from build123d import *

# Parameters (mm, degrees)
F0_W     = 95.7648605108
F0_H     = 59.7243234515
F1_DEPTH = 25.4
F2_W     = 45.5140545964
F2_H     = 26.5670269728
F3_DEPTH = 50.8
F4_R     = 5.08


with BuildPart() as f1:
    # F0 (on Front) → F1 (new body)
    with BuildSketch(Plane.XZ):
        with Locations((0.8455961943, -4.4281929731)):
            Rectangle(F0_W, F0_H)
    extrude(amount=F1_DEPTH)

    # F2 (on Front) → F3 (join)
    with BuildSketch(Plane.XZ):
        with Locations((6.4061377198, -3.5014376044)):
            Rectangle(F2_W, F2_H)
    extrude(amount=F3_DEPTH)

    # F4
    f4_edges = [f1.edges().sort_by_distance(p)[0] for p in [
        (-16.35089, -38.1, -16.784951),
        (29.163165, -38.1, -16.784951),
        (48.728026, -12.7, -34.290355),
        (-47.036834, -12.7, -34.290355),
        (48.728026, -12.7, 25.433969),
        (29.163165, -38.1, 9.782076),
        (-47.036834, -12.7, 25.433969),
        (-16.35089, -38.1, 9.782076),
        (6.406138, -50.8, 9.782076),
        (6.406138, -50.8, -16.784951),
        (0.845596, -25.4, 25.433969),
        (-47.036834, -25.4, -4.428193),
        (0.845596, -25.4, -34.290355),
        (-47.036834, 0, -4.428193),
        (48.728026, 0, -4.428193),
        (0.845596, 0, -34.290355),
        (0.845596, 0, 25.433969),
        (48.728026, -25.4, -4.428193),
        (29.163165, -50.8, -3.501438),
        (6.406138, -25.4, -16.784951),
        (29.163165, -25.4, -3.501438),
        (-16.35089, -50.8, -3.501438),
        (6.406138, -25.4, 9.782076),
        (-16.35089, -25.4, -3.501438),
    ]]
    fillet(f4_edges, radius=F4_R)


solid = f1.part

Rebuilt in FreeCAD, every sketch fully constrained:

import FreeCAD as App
import Part
import Sketcher
from FreeCAD import Vector
Q = App.Units.Quantity

doc = App.newDocument("Part")
body = doc.addObject("PartDesign::Body", "Body")

# Sketch on XZ plane
sketch1 = body.newObject("Sketcher::SketchObject", "Sketch")
sketch1.AttachmentSupport = (doc.getObject("XZ_Plane"), [""])
sketch1.MapMode = "FlatFace"
sketch1.addGeometry(Part.LineSegment(Vector(-47, 25, 0), Vector(-47, -34, 0)), False)
sketch1.addGeometry(Part.LineSegment(Vector(-47, -34, 0), Vector(49, -34, 0)), False)
sketch1.addGeometry(Part.LineSegment(Vector(49, -34, 0), Vector(49, 25, 0)), False)
sketch1.addGeometry(Part.LineSegment(Vector(49, 25, 0), Vector(-47, 25, 0)), False)
sketch1.addConstraint(Sketcher.Constraint("Coincident", 0, 2, 1, 1))
sketch1.addConstraint(Sketcher.Constraint("Coincident", 1, 2, 2, 1))
sketch1.addConstraint(Sketcher.Constraint("Coincident", 2, 2, 3, 1))
sketch1.addConstraint(Sketcher.Constraint("Coincident", 3, 2, 0, 1))
sketch1.addConstraint(Sketcher.Constraint("Vertical", 0))
sketch1.addConstraint(Sketcher.Constraint("Horizontal", 1))
sketch1.addConstraint(Sketcher.Constraint("Vertical", 2))
sketch1.addConstraint(Sketcher.Constraint("Horizontal", 3))
sketch1.addConstraint(Sketcher.Constraint("DistanceX", 1, 1, 1, 2, Q("95.764861 mm")))
sketch1.addConstraint(Sketcher.Constraint("DistanceY", 0, 2, 0, 1, Q("59.724323 mm")))
sketch1.addConstraint(Sketcher.Constraint("DistanceY", -1, 1, 2, 2, Q("25.433969 mm")))
sketch1.addConstraint(Sketcher.Constraint("DistanceX", 0, 2, -1, 1, Q("47.036834 mm")))
pad1 = body.newObject("PartDesign::Pad", "Pad")
pad1.Profile = sketch1
pad1.Length = Q("1 in")

# Sketch on XZ plane
sketch2 = body.newObject("Sketcher::SketchObject", "Sketch001")
sketch2.AttachmentSupport = (doc.getObject("XZ_Plane"), [""])
sketch2.MapMode = "FlatFace"
sketch2.addGeometry(Part.LineSegment(Vector(-16, 10, 0), Vector(-16, -17, 0)), False)
sketch2.addGeometry(Part.LineSegment(Vector(-16, -17, 0), Vector(29, -17, 0)), False)
sketch2.addGeometry(Part.LineSegment(Vector(29, -17, 0), Vector(29, 10, 0)), False)
sketch2.addGeometry(Part.LineSegment(Vector(29, 10, 0), Vector(-16, 10, 0)), False)
sketch2.addConstraint(Sketcher.Constraint("Coincident", 0, 2, 1, 1))
sketch2.addConstraint(Sketcher.Constraint("Coincident", 1, 2, 2, 1))
sketch2.addConstraint(Sketcher.Constraint("Coincident", 2, 2, 3, 1))
sketch2.addConstraint(Sketcher.Constraint("Coincident", 3, 2, 0, 1))
sketch2.addConstraint(Sketcher.Constraint("Vertical", 0))
sketch2.addConstraint(Sketcher.Constraint("Horizontal", 1))
sketch2.addConstraint(Sketcher.Constraint("Vertical", 2))
sketch2.addConstraint(Sketcher.Constraint("Horizontal", 3))
sketch2.addConstraint(Sketcher.Constraint("DistanceX", 1, 1, 1, 2, Q("45.514055 mm")))
sketch2.addConstraint(Sketcher.Constraint("DistanceY", 0, 2, 0, 1, Q("26.567027 mm")))
sketch2.addConstraint(Sketcher.Constraint("DistanceX", 0, 2, -1, 1, Q("16.35089 mm")))
sketch2.addConstraint(Sketcher.Constraint("DistanceY", 0, 2, -1, 1, Q("16.784951 mm")))
pad2 = body.newObject("PartDesign::Pad", "Pad001")
pad2.Profile = sketch2
pad2.Length = Q("2 in")
doc.recompute()

fillet = body.newObject("PartDesign::Fillet", "Fillet")
fillet.Base = (pad2, ["Edge1"])
fillet.UseAllEdges = True
fillet.Radius = Q("0.2 in")

doc.recompute()
